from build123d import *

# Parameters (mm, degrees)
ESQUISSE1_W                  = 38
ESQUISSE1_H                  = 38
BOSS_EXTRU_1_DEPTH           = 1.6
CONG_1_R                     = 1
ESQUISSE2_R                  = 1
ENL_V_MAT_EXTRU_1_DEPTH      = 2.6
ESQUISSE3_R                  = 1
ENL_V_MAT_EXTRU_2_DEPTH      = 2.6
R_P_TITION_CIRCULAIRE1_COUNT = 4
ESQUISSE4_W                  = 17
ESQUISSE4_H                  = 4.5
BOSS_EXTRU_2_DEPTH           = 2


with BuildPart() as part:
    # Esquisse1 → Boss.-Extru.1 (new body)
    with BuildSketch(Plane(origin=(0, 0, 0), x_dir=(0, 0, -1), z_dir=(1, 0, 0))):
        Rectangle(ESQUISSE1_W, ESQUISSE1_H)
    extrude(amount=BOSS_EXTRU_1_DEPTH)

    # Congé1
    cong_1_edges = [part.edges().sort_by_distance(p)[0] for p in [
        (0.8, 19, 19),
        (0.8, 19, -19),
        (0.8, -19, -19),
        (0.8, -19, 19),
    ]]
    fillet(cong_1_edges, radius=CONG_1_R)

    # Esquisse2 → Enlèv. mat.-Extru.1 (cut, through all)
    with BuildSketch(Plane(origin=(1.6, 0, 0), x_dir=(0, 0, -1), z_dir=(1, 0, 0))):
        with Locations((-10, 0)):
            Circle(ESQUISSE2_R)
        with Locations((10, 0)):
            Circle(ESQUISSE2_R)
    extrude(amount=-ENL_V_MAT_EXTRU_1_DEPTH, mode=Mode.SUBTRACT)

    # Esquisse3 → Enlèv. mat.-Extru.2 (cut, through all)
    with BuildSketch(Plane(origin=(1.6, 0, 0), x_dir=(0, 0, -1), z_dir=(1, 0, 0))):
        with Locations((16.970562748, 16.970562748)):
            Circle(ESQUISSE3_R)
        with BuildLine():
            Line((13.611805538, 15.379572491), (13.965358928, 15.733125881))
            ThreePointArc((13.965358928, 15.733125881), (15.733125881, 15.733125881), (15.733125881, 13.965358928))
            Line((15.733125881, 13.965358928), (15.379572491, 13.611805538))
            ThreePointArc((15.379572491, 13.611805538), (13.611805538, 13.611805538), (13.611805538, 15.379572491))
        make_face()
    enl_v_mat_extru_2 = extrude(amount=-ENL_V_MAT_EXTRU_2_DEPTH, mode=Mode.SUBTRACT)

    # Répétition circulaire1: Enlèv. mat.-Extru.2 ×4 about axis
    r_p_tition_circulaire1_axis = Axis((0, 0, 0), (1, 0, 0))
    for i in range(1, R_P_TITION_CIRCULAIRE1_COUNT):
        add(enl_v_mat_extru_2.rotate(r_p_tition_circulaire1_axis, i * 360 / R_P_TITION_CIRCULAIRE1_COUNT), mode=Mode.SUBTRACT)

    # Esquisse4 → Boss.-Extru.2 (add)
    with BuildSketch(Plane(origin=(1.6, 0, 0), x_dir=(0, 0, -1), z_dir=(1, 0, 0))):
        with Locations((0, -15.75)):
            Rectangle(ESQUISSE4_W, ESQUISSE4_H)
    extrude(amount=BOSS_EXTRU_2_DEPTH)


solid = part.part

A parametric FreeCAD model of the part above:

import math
import FreeCAD as App
import Part
import Sketcher

V = App.Vector
Q = App.Units.Quantity


def edges_at(feature, points):
    """Names of the edges that pass closest to the given points."""
    edges = feature.Shape.Edges
    near = lambda p: min(range(len(edges)), key=lambda i: edges[i].distToShape(Part.Vertex(*p))[0])
    return sorted({f"Edge{near(p) + 1}" for p in points})


def add_polygon(sketch, points):
    """Adds a closed chain of lines whose ends are joined by coincident constraints."""
    first, n = sketch.GeometryCount, len(points)
    for a, b in zip(points, points[1:] + points[:1]):
        sketch.addGeometry(Part.LineSegment(App.Vector(*a, 0), App.Vector(*b, 0)), False)
    for i in range(n):
        sketch.addConstraint(Sketcher.Constraint("Coincident", first + i, 2, first + (i + 1) % n, 1))

doc = App.newDocument("Part")
body = doc.addObject("PartDesign::Body", "Body")

# Sketch on YZ plane
sketch1 = doc.addObject("Sketcher::SketchObject", "Sketch")
body.addObject(sketch1)
sketch1.AttachmentSupport = (doc.YZ_Plane, [""])
sketch1.MapMode = "FlatFace"
add_polygon(sketch1, [(19, 19), (-19, 19), (-19, -19), (19, -19)])  # lines 0-3
sketch1.addConstraint([
    Sketcher.Constraint("Horizontal", 0),
    Sketcher.Constraint("Vertical", 1),
    Sketcher.Constraint("Horizontal", 2),
    Sketcher.Constraint("Vertical", 3),
    Sketcher.Constraint("Symmetric", 0, 2, 2, 2, -1, 1),
    Sketcher.Constraint("Equal", 2, 1),
    Sketcher.Constraint("DistanceX", 0, 2, 0, 1, Q("38 mm")),
])
pad1 = doc.addObject("PartDesign::Pad", "Pad")
body.addObject(pad1)
pad1.Profile = sketch1
pad1.Length = 1.6
doc.recompute()

fillet = doc.addObject("PartDesign::Fillet", "Fillet")
body.addObject(fillet)
fillet.Base = (pad1, edges_at(pad1, [
    (0.8, 19, 19),
    (0.8, 19, -19),
    (0.8, -19, -19),
    (0.8, -19, 19),
]))
fillet.Radius = 1

# Sketch on YZ plane
sketch2 = doc.addObject("Sketcher::SketchObject", "Sketch001")
body.addObject(sketch2)
sketch2.AttachmentSupport = (doc.YZ_Plane, [""])
sketch2.MapMode = "FlatFace"
sketch2.AttachmentOffset = App.Placement(V(0, 0, 1.6), App.Rotation())
sketch2.addGeometry([
    Part.Circle(V(0, 10, 0), V(0, 0, 1), 1),
    Part.Circle(V(0, -10, 0), V(0, 0, 1), 1),
], False)
sketch2.addConstraint([
    Sketcher.Constraint("Equal", 0, 1),
    Sketcher.Constraint("Symmetric", 0, 3, 1, 3, -1, 1),
    Sketcher.Constraint("PointOnObject", 0, 3, -2),
    Sketcher.Constraint("Diameter", 0, Q("2 mm")),
    Sketcher.Constraint("DistanceY", -1, 1, 0, 3, Q("10 mm")),
])
pocket1 = doc.addObject("PartDesign::Pocket", "Pocket")
body.addObject(pocket1)
pocket1.Profile = sketch2
pocket1.Type = "ThroughAll"

# Sketch on YZ plane
sketch3 = doc.addObject("Sketcher::SketchObject", "Sketch002")
body.addObject(sketch3)
sketch3.AttachmentSupport = (doc.YZ_Plane, [""])
sketch3.MapMode = "FlatFace"
sketch3.AttachmentOffset = App.Placement(V(0, 0, 1.6), App.Rotation())
sketch3.addGeometry([
    Part.Circle(V(16.97, -16.97, 0), V(0, 0, 1), 1),  # 0
    Part.LineSegment(V(15.73, -13.97, 0), V(15.38, -13.61, 0)),  # 1
    Part.ArcOfCircle(Part.Circle(V(14.5, -14.5, 0), V(0, 0, 1), 1.25), math.radians(45), math.radians(225)),  # 2
    Part.LineSegment(V(13.61, -15.38, 0), V(13.97, -15.73, 0)),  # 3
    Part.ArcOfCircle(Part.Circle(V(14.85, -14.85, 0), V(0, 0, 1), 1.25), math.radians(-135), math.radians(45)),  # 4
], False)
sketch3.addConstraint([
    Sketcher.Constraint("Tangent", 1, 2, 2, 1),
    Sketcher.Constraint("Tangent", 2, 2, 3, 1),
    Sketcher.Constraint("Tangent", 3, 2, 4, 1),
    Sketcher.Constraint("Tangent", 4, 2, 1, 1),
    Sketcher.Constraint("Equal", 2, 4),
    Sketcher.Constraint("Diameter", 0, Q("2 mm")),
    Sketcher.Constraint("Angle", 1, Q("135 deg")),
    Sketcher.Constraint("Radius", 2, Q("1.25 mm")),
    Sketcher.Constraint("Distance", 1, Q("0.5 mm")),
    Sketcher.Constraint("DistanceX", -1, 1, 2, 3, Q("14.495689 mm")),
    Sketcher.Constraint("DistanceY", 2, 3, -1, 1, Q("14.495689 mm")),
    Sketcher.Constraint("DistanceX", 4, 3, 0, 3, Q("2.12132 mm")),
    Sketcher.Constraint("DistanceY", 0, 3, 4, 3, Q("2.12132 mm")),
])
pocket2 = doc.addObject("PartDesign::Pocket", "Pocket001")
body.addObject(pocket2)
pocket2.Profile = sketch3
pocket2.Type = "ThroughAll"
doc.recompute()

polarpattern = doc.addObject("PartDesign::PolarPattern", "PolarPattern")
body.addObject(polarpattern)
polarpattern.Originals = [pocket2]
polarpattern.Axis = (doc.X_Axis, [""])
polarpattern.Angle = 360
polarpattern.Occurrences = 4
body.Tip = polarpattern

# Sketch on YZ plane
sketch4 = doc.addObject("Sketcher::SketchObject", "Sketch003")
body.addObject(sketch4)
sketch4.AttachmentSupport = (doc.YZ_Plane, [""])
sketch4.MapMode = "FlatFace"
sketch4.AttachmentOffset = App.Placement(V(0, 0, 1.6), App.Rotation())
add_polygon(sketch4, [(-13.5, 8.5), (-18, 8.5), (-18, -8.5), (-13.5, -8.5)])  # lines 0-3
sketch4.addConstraint([
    Sketcher.Constraint("Horizontal", 0),
    Sketcher.Constraint("Vertical", 1),
    Sketcher.Constraint("Horizontal", 2),
    Sketcher.Constraint("Vertical", 3),
    Sketcher.Constraint("DistanceY", 1, 2, 1, 1, Q("17 mm")),
    Sketcher.Constraint("DistanceX", 0, 2, 0, 1, Q("4.5 mm")),
    Sketcher.Constraint("DistanceX", 0, 2, -1, 1, Q("18 mm")),
    Sketcher.Constraint("DistanceY", -1, 1, 0, 2, Q("8.5 mm")),
])
pad2 = doc.addObject("PartDesign::Pad", "Pad001")
body.addObject(pad2)
pad2.Profile = sketch4
pad2.Length = 2

doc.recompute()
